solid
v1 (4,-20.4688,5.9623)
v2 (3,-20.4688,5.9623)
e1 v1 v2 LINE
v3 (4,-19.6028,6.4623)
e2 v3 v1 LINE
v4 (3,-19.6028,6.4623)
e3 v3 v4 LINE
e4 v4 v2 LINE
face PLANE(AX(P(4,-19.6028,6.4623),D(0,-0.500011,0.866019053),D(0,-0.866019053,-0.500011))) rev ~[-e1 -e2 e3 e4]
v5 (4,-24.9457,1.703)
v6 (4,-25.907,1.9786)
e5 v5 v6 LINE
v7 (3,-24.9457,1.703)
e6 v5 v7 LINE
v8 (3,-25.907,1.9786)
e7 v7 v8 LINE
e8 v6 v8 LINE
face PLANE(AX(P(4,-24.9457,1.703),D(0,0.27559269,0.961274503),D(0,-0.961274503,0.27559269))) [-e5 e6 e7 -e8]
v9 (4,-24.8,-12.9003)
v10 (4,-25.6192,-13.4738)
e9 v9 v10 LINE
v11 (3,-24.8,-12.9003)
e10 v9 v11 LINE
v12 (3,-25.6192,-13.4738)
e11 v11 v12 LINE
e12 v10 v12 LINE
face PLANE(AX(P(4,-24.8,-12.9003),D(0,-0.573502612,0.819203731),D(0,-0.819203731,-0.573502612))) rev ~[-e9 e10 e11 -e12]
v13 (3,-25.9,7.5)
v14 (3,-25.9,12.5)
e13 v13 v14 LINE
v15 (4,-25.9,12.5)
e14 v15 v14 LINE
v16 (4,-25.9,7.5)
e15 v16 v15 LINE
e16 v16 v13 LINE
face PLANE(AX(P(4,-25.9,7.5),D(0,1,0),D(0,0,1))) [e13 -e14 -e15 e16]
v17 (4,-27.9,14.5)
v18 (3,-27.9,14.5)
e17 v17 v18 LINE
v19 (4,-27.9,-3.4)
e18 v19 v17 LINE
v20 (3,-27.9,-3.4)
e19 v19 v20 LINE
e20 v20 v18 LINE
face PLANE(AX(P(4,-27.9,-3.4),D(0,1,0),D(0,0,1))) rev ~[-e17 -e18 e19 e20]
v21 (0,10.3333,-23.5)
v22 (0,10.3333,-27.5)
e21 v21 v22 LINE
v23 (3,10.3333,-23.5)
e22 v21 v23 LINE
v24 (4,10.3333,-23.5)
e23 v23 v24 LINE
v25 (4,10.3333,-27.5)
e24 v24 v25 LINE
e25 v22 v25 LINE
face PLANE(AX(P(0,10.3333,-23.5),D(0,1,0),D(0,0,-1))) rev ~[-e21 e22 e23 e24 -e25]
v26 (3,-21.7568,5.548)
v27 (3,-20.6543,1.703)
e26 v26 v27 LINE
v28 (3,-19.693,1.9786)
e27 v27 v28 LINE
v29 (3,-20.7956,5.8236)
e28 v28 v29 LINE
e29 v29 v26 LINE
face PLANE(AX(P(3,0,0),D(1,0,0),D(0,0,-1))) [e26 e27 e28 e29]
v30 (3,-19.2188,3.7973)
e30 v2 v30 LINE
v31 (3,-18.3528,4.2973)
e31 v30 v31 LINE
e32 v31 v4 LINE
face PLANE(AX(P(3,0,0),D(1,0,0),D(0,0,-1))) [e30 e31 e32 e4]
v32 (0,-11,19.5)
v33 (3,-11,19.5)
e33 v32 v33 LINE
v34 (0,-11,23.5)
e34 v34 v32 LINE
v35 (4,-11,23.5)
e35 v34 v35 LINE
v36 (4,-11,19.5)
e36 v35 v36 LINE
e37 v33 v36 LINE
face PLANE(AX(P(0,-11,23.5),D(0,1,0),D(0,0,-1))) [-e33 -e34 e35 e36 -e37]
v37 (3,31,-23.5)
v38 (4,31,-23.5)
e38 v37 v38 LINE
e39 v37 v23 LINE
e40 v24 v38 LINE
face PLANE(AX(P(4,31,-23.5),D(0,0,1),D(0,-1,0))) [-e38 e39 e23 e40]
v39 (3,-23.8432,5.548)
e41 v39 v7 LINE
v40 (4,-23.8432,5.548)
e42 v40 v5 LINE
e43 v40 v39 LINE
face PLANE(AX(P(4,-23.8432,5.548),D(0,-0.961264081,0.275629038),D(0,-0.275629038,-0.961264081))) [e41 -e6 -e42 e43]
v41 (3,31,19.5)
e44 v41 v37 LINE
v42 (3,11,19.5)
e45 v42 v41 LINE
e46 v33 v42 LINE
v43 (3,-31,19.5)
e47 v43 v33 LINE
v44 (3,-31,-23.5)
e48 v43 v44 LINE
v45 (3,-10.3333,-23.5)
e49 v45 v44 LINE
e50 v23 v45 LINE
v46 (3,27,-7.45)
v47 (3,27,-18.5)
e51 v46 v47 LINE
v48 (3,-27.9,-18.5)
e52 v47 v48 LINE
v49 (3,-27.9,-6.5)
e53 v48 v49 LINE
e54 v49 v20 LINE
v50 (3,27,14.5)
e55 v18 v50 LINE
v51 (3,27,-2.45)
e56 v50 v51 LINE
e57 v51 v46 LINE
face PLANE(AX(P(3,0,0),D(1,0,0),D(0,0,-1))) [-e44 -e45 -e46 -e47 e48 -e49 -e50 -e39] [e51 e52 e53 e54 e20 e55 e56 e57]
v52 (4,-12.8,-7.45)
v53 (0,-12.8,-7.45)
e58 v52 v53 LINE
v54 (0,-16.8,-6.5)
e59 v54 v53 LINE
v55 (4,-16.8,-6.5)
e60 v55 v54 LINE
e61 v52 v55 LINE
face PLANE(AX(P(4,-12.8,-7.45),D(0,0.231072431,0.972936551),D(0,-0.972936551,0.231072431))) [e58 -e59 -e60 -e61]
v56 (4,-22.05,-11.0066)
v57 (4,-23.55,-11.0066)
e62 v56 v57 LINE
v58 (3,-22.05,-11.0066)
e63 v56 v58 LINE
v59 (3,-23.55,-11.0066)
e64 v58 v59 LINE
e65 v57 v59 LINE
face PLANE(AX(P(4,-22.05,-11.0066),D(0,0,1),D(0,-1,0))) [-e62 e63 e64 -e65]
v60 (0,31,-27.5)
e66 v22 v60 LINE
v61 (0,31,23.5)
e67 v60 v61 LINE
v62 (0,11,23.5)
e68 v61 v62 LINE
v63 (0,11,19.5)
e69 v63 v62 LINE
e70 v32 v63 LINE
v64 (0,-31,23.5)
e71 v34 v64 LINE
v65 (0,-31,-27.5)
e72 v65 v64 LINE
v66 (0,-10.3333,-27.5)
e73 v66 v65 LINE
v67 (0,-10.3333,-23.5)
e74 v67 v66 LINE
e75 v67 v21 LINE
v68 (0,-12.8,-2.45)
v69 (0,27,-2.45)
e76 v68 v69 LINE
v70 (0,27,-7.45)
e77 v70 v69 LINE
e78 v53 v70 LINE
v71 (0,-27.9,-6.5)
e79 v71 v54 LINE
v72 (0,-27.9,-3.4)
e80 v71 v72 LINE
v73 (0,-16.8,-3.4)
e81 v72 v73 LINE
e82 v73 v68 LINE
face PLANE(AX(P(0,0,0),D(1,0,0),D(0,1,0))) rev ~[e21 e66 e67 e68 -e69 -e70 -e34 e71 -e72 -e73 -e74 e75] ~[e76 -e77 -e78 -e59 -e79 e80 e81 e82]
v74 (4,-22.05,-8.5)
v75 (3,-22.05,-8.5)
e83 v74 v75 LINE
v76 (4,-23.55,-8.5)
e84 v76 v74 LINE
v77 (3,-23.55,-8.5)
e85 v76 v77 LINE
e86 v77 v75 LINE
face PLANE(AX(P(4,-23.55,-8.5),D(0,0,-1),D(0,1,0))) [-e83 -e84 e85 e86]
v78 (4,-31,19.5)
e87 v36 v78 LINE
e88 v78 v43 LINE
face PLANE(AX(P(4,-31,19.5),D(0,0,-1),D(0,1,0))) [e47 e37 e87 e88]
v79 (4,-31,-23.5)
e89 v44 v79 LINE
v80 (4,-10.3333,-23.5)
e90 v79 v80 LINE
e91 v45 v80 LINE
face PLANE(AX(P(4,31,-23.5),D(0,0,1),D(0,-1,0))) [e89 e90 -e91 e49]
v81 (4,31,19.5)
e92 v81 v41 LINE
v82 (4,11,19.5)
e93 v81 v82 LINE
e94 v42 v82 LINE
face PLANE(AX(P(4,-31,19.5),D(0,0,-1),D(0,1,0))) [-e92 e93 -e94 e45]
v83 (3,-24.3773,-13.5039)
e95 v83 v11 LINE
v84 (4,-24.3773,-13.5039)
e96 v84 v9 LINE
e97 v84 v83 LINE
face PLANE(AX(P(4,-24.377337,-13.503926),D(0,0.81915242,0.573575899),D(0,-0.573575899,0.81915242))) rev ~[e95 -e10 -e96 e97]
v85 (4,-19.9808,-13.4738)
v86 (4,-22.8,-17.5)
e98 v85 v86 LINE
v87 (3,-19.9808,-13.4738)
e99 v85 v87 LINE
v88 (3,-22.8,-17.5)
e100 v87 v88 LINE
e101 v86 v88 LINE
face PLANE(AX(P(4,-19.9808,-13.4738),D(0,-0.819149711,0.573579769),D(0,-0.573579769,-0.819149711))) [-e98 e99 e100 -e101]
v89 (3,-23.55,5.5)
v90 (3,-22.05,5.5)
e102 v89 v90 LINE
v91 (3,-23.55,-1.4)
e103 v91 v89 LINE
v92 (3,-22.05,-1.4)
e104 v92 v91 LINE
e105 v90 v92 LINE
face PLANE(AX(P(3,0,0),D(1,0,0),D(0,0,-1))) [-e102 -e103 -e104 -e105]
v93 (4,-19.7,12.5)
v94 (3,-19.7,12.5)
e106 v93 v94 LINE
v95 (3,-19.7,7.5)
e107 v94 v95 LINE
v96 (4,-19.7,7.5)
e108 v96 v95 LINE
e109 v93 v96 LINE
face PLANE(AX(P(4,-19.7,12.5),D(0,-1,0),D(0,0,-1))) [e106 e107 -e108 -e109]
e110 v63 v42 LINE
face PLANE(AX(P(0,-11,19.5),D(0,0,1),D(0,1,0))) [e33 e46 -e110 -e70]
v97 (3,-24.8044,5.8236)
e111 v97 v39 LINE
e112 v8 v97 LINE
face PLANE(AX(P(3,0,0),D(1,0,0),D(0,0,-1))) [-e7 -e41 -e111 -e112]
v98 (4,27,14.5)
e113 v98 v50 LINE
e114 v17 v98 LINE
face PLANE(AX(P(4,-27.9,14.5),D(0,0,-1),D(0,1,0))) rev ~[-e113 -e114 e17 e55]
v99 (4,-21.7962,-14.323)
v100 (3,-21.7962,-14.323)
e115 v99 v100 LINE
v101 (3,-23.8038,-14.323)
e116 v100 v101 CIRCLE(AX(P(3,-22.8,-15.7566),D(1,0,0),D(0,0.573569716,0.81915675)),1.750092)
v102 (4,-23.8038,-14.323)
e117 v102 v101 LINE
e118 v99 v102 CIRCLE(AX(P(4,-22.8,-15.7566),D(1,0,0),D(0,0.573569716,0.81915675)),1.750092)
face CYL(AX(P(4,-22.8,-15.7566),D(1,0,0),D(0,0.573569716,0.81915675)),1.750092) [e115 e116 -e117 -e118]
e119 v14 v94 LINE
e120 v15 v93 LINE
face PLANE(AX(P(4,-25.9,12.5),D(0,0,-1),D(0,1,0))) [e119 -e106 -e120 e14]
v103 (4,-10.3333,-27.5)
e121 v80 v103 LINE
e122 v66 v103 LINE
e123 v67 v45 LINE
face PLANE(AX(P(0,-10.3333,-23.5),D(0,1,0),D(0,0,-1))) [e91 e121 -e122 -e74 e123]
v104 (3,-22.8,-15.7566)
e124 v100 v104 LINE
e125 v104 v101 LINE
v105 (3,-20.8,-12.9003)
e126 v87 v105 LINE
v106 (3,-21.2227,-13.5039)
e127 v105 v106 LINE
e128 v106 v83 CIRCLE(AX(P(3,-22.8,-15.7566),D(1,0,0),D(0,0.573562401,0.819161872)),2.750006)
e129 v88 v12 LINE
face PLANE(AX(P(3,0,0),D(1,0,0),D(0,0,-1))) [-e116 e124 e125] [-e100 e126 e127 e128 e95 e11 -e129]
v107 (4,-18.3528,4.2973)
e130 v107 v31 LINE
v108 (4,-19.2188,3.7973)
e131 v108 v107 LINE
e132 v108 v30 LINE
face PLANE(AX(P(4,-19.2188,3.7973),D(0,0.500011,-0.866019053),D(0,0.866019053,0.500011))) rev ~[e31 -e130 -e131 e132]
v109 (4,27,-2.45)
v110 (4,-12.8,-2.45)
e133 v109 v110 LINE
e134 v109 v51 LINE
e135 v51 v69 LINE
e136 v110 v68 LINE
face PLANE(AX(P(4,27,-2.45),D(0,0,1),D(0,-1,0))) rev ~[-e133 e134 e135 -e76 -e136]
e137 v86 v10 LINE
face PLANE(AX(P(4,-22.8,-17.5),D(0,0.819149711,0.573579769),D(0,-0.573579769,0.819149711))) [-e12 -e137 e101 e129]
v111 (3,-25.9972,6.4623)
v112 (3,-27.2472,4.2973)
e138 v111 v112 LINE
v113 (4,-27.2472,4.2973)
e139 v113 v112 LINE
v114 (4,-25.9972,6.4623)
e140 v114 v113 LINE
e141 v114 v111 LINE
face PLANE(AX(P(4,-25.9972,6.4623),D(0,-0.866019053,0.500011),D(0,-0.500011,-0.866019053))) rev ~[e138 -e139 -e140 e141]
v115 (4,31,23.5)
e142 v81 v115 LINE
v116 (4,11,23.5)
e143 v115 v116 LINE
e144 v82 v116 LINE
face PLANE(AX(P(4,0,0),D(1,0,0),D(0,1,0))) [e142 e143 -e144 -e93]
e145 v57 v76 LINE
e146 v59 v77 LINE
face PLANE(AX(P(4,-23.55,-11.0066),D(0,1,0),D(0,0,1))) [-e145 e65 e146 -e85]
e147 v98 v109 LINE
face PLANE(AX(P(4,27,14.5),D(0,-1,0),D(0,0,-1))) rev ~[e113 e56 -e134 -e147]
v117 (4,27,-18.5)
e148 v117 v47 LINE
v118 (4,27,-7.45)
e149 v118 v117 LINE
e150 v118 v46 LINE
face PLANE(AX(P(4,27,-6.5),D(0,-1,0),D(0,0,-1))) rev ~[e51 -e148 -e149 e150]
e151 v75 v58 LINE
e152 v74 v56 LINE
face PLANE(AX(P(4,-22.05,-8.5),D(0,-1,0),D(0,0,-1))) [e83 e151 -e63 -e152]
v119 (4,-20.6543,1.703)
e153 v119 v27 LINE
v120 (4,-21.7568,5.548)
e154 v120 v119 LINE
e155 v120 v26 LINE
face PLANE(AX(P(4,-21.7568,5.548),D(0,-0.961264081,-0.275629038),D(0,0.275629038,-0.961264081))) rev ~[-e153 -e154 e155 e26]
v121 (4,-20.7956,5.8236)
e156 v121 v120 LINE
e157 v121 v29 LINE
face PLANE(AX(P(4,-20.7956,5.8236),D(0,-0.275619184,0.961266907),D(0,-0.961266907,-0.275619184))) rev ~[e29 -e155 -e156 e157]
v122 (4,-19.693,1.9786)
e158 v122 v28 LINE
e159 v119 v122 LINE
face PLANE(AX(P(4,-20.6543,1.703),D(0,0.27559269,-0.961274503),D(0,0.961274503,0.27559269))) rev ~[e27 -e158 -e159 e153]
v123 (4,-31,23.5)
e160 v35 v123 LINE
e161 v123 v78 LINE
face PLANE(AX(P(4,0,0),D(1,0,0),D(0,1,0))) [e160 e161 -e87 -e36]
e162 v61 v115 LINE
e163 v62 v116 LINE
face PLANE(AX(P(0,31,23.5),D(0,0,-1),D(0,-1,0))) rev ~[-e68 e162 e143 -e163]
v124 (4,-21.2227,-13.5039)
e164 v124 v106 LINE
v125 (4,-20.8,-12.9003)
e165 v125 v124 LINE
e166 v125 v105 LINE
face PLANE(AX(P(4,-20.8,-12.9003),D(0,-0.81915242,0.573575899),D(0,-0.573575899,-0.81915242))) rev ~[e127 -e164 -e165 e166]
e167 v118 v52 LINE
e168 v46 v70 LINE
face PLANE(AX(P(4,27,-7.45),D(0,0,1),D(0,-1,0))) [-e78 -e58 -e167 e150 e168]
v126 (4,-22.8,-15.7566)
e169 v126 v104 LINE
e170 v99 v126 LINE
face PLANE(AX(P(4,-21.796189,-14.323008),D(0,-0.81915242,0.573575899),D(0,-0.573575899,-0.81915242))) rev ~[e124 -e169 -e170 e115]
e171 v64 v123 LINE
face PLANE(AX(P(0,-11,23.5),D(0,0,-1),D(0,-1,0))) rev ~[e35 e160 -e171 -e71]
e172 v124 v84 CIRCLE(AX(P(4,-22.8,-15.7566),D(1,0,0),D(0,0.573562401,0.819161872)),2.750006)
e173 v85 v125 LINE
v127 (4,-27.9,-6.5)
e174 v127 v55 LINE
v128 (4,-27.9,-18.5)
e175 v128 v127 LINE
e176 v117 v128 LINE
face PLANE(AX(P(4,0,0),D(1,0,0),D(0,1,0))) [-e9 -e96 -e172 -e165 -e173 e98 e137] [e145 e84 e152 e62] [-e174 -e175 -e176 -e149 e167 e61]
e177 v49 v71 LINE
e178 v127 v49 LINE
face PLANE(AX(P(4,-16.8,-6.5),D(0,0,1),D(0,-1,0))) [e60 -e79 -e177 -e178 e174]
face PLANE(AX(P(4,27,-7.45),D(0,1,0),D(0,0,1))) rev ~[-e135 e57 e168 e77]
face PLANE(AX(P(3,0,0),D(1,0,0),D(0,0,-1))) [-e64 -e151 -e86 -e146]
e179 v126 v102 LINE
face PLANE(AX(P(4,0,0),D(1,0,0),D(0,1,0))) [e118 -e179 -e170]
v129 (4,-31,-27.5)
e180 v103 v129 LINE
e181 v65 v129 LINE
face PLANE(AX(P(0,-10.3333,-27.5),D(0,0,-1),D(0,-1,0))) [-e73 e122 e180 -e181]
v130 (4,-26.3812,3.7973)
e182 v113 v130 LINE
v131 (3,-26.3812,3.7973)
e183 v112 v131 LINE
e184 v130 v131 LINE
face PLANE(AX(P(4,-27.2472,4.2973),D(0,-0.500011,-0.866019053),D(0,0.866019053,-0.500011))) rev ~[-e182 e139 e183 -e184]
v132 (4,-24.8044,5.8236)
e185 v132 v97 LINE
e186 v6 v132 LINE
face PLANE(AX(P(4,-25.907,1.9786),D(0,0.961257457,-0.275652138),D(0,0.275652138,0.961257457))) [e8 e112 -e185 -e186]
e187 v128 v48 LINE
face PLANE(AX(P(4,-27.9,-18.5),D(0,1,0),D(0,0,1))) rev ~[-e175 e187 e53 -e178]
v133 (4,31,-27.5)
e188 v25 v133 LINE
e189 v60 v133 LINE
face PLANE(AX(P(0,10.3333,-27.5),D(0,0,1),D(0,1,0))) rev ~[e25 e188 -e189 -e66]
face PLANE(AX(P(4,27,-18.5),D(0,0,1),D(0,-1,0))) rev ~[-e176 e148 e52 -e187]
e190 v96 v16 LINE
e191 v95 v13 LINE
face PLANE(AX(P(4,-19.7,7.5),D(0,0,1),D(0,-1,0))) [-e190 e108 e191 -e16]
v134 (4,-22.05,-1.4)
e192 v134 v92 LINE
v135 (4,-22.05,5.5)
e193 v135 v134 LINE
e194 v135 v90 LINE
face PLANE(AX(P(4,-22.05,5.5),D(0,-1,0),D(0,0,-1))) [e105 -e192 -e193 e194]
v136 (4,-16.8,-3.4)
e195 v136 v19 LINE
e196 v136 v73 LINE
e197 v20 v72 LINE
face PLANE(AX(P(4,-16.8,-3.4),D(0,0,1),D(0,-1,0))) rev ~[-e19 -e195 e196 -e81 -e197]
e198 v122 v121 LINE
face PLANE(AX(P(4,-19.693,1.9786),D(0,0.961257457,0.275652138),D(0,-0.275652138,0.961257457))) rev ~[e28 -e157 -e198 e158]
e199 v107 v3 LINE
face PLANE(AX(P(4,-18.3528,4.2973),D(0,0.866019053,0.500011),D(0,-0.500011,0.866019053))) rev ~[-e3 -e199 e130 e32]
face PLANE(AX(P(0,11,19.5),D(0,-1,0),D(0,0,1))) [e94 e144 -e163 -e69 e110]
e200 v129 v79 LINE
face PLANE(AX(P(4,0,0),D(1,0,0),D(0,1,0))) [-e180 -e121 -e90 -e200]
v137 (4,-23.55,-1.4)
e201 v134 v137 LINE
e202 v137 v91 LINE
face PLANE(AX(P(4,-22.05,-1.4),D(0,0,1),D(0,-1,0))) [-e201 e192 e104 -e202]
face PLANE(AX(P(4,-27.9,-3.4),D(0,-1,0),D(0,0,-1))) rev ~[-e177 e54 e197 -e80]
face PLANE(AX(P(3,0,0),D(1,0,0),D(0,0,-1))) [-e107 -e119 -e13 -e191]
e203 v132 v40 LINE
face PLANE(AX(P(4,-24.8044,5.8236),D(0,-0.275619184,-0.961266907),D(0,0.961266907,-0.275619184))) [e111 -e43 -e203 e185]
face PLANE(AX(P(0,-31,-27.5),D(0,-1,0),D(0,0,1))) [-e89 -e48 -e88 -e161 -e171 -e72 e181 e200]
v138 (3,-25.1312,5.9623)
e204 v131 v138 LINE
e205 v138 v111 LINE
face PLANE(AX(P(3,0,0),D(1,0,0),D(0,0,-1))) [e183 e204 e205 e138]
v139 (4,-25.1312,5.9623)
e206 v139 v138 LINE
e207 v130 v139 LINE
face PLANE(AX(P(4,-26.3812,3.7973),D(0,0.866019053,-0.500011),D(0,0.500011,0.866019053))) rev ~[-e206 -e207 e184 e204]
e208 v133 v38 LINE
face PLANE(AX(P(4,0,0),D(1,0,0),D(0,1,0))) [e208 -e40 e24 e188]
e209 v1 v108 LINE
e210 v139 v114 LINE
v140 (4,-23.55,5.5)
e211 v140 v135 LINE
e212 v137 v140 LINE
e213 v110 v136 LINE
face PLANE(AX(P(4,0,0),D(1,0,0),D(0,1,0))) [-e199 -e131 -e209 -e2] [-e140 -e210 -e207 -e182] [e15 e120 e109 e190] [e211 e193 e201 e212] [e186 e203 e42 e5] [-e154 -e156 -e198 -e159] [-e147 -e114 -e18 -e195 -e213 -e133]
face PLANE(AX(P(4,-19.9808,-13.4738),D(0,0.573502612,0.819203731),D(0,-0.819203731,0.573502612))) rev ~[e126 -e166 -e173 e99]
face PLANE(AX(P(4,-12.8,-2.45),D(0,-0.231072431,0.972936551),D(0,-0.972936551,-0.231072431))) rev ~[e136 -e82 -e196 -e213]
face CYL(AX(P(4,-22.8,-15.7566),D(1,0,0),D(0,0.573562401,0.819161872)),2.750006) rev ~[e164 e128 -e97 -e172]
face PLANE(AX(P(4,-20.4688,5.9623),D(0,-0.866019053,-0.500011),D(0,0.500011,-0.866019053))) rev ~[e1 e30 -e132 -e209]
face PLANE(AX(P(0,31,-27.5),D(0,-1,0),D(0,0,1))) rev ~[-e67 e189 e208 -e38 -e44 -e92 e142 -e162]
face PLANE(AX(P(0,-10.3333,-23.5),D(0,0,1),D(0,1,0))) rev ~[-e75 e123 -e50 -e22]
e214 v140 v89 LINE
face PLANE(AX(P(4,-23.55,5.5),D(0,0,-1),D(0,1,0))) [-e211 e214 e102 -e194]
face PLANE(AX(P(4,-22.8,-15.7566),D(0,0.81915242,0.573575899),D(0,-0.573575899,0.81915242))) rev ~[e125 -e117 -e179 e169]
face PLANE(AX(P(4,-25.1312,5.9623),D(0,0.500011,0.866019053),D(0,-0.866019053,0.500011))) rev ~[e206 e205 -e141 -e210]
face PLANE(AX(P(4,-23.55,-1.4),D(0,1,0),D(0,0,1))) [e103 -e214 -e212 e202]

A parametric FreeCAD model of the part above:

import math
import FreeCAD as App
import Part
import Sketcher

V = App.Vector
Q = App.Units.Quantity


def add_polygon(sketch, points):
    """Adds a closed chain of lines whose ends are joined by coincident constraints."""
    first, n = sketch.GeometryCount, len(points)
    for a, b in zip(points, points[1:] + points[:1]):
        sketch.addGeometry(Part.LineSegment(App.Vector(*a, 0), App.Vector(*b, 0)), False)
    for i in range(n):
        sketch.addConstraint(Sketcher.Constraint("Coincident", first + i, 2, first + (i + 1) % n, 1))

doc = App.newDocument("Part")
body = doc.addObject("PartDesign::Body", "Body")

# Sketch on YZ plane
sketch1 = body.newObject("Sketcher::SketchObject", "Sketch")
sketch1.AttachmentSupport = (doc.getObject("YZ_Plane"), [""])
sketch1.MapMode = "FlatFace"
add_polygon(sketch1, [(31, -27.5), (31, 23.5), (11, 23.5), (11, 19.5), (-11, 19.5), (-11, 23.5), (-31, 23.5), (-31, -27.5), (-10.3, -27.5), (-10.3, -23.5), (10.3, -23.5), (10.3, -27.5)])  # lines 0-11
sketch1.addConstraint(Sketcher.Constraint("Vertical", 0))
sketch1.addConstraint(Sketcher.Constraint("Horizontal", 1))
sketch1.addConstraint(Sketcher.Constraint("Vertical", 2))
sketch1.addConstraint(Sketcher.Constraint("Horizontal", 3))
sketch1.addConstraint(Sketcher.Constraint("Vertical", 4))
sketch1.addConstraint(Sketcher.Constraint("Horizontal", 5))
sketch1.addConstraint(Sketcher.Constraint("Vertical", 6))
sketch1.addConstraint(Sketcher.Constraint("Horizontal", 7))
sketch1.addConstraint(Sketcher.Constraint("Vertical", 8))
sketch1.addConstraint(Sketcher.Constraint("Horizontal", 9))
sketch1.addConstraint(Sketcher.Constraint("Vertical", 10))
sketch1.addConstraint(Sketcher.Constraint("Horizontal", 11))
sketch1.addConstraint(Sketcher.Constraint("Symmetric", 1, 2, 4, 2, -2))
sketch1.addConstraint(Sketcher.Constraint("Symmetric", 7, 2, 10, 2, -2))
sketch1.addConstraint(Sketcher.Constraint("Equal", 1, 5))
sketch1.addConstraint(Sketcher.Constraint("Equal", 7, 9))
sketch1.addConstraint(Sketcher.Constraint("Equal", 4, 8))
sketch1.addConstraint(Sketcher.Constraint("DistanceX", 1, 2, 1, 1, Q("20 mm")))
sketch1.addConstraint(Sketcher.Constraint("DistanceY", 2, 2, 2, 1, Q("4 mm")))
sketch1.addConstraint(Sketcher.Constraint("DistanceX", 5, 2, 0, 2, Q("62 mm")))
sketch1.addConstraint(Sketcher.Constraint("DistanceY", 6, 2, 3, 2, Q("47 mm")))
sketch1.addConstraint(Sketcher.Constraint("DistanceY", -1, 1, 0, 2, Q("23.5 mm")))
pad1 = body.newObject("PartDesign::Pad", "Pad")
pad1.Profile = sketch1
pad1.Length = 4

# Sketch on YZ plane
sketch2 = body.newObject("Sketcher::SketchObject", "Sketch001")
sketch2.AttachmentSupport = (doc.getObject("YZ_Plane"), [""])
sketch2.MapMode = "FlatFace"
sketch2.AttachmentOffset = App.Placement(V(0, 0, 4), App.Rotation())
add_polygon(sketch2, [(31, -23.5), (31, 19.5), (-31, 19.5), (-31, -23.5)])  # lines 0-3
add_polygon(sketch2, [(-27.9, -6.5), (27, -6.5), (27, -18.5), (-27.9, -18.5)])  # lines 4-7
add_polygon(sketch2, [(27, -3.4), (-27.9, -3.4), (-27.9, 14.5), (27, 14.5)])  # lines 8-11
add_polygon(sketch2, [(-19.7, 7.5), (-19.7, 12.5), (-25.9, 12.5), (-25.9, 7.5)])  # lines 12-15
add_polygon(sketch2, [(-22.1, -1.4), (-22.1, 5.5), (-23.6, 5.5), (-23.6, -1.4)])  # lines 16-19
sketch2.addGeometry(Part.LineSegment(V(-22.8, -17.5, 0), V(-20, -13.5, 0)), False)  # 20
sketch2.addGeometry(Part.LineSegment(V(-20, -13.5, 0), V(-20.8, -12.9, 0)), False)  # 21
sketch2.addGeometry(Part.LineSegment(V(-20.8, -12.9, 0), V(-21.2, -13.5, 0)), False)  # 22
sketch2.addGeometry(Part.ArcOfCircle(Part.Circle(V(-22.8, -15.8, 0), V(0, 0, 1), 2.8), math.radians(55), math.radians(125)), False)  # 23
sketch2.addGeometry(Part.LineSegment(V(-24.4, -13.5, 0), V(-24.8, -12.9, 0)), False)  # 24
sketch2.addGeometry(Part.LineSegment(V(-24.8, -12.9, 0), V(-25.6, -13.5, 0)), False)  # 25
sketch2.addGeometry(Part.LineSegment(V(-25.6, -13.5, 0), V(-22.8, -17.5, 0)), False)  # 26
sketch2.addGeometry(Part.LineSegment(V(-22.8, -15.8, 0), V(-23.8, -14.3, 0)), False)  # 27
sketch2.addGeometry(Part.ArcOfCircle(Part.Circle(V(-22.8, -15.8, 0), V(0, 0, 1), 1.8), math.radians(55), math.radians(125)), False)  # 28
sketch2.addGeometry(Part.LineSegment(V(-21.8, -14.3, 0), V(-22.8, -15.8, 0)), False)  # 29
add_polygon(sketch2, [(-22.1, -11), (-22.1, -8.5), (-23.6, -8.5), (-23.6, -11)])  # lines 30-33
add_polygon(sketch2, [(-19.7, 2), (-20.8, 5.8), (-21.8, 5.5), (-20.7, 1.7)])  # lines 34-37
add_polygon(sketch2, [(-24.9, 1.7), (-23.8, 5.5), (-24.8, 5.8), (-25.9, 2)])  # lines 38-41
add_polygon(sketch2, [(-18.4, 4.3), (-19.6, 6.5), (-20.5, 6), (-19.2, 3.8)])  # lines 42-45
add_polygon(sketch2, [(-26.4, 3.8), (-25.1, 6), (-26, 6.5), (-27.2, 4.3)])  # lines 46-49
sketch2.addConstraint(Sketcher.Constraint("Coincident", 20, 2, 21, 1))
sketch2.addConstraint(Sketcher.Constraint("Coincident", 21, 2, 22, 1))
sketch2.addConstraint(Sketcher.Constraint("Coincident", 22, 2, 23, 1))
sketch2.addConstraint(Sketcher.Constraint("Coincident", 23, 2, 24, 1))
sketch2.addConstraint(Sketcher.Constraint("Coincident", 24, 2, 25, 1))
sketch2.addConstraint(Sketcher.Constraint("Coincident", 25, 2, 26, 1))
sketch2.addConstraint(Sketcher.Constraint("Coincident", 26, 2, 20, 1))
sketch2.addConstraint(Sketcher.Constraint("Coincident", 27, 2, 28, 2))
sketch2.addConstraint(Sketcher.Constraint("Coincident", 28, 1, 29, 1))
sketch2.addConstraint(Sketcher.Constraint("Coincident", 29, 2, 27, 1))
sketch2.addConstraint(Sketcher.Constraint("Vertical", 0))
sketch2.addConstraint(Sketcher.Constraint("Horizontal", 1))
sketch2.addConstraint(Sketcher.Constraint("Vertical", 2))
sketch2.addConstraint(Sketcher.Constraint("Horizontal", 3))
sketch2.addConstraint(Sketcher.Constraint("Horizontal", 4))
sketch2.addConstraint(Sketcher.Constraint("Vertical", 5))
sketch2.addConstraint(Sketcher.Constraint("Horizontal", 6))
sketch2.addConstraint(Sketcher.Constraint("Vertical", 7))
sketch2.addConstraint(Sketcher.Constraint("Horizontal", 8))
sketch2.addConstraint(Sketcher.Constraint("Vertical", 9))
sketch2.addConstraint(Sketcher.Constraint("Horizontal", 10))
sketch2.addConstraint(Sketcher.Constraint("Vertical", 11))
sketch2.addConstraint(Sketcher.Constraint("Vertical", 12))
sketch2.addConstraint(Sketcher.Constraint("Horizontal", 13))
sketch2.addConstraint(Sketcher.Constraint("Vertical", 14))
sketch2.addConstraint(Sketcher.Constraint("Horizontal", 15))
sketch2.addConstraint(Sketcher.Constraint("Vertical", 16))
sketch2.addConstraint(Sketcher.Constraint("Horizontal", 17))
sketch2.addConstraint(Sketcher.Constraint("Vertical", 18))
sketch2.addConstraint(Sketcher.Constraint("Horizontal", 19))
sketch2.addConstraint(Sketcher.Constraint("Vertical", 30))
sketch2.addConstraint(Sketcher.Constraint("Horizontal", 31))
sketch2.addConstraint(Sketcher.Constraint("Vertical", 32))
sketch2.addConstraint(Sketcher.Constraint("Horizontal", 33))
sketch2.addConstraint(Sketcher.Constraint("Coincident", 28, 3, 23, 3))
sketch2.addConstraint(Sketcher.Constraint("Coincident", 29, 2, 23, 3))
sketch2.addConstraint(Sketcher.Constraint("Perpendicular", 20, 21))
sketch2.addConstraint(Sketcher.Constraint("Perpendicular", 21, 22))
sketch2.addConstraint(Sketcher.Constraint("Perpendicular", 24, 25))
sketch2.addConstraint(Sketcher.Constraint("Perpendicular", 25, 26))
sketch2.addConstraint(Sketcher.Constraint("Parallel", 26, 27))
sketch2.addConstraint(Sketcher.Constraint("Parallel", 22, 29))
sketch2.addConstraint(Sketcher.Constraint("Perpendicular", 34, 35))
sketch2.addConstraint(Sketcher.Constraint("Perpendicular", 35, 36))
sketch2.addConstraint(Sketcher.Constraint("Perpendicular", 36, 37))
sketch2.addConstraint(Sketcher.Constraint("Perpendicular", 38, 39))
sketch2.addConstraint(Sketcher.Constraint("Perpendicular", 39, 40))
sketch2.addConstraint(Sketcher.Constraint("Perpendicular", 40, 41))
sketch2.addConstraint(Sketcher.Constraint("Perpendicular", 42, 43))
sketch2.addConstraint(Sketcher.Constraint("Perpendicular", 43, 44))
sketch2.addConstraint(Sketcher.Constraint("Perpendicular", 44, 45))
sketch2.addConstraint(Sketcher.Constraint("Perpendicular", 46, 47))
sketch2.addConstraint(Sketcher.Constraint("Perpendicular", 47, 48))
sketch2.addConstraint(Sketcher.Constraint("Perpendicular", 48, 49))
sketch2.addConstraint(Sketcher.Constraint("Horizontal", 22, 2, 23, 2))
sketch2.addConstraint(Sketcher.Constraint("Horizontal", 21, 2, 24, 2))
sketch2.addConstraint(Sketcher.Constraint("Horizontal", 20, 2, 25, 2))
sketch2.addConstraint(Sketcher.Constraint("Horizontal", 27, 2, 28, 1))
sketch2.addConstraint(Sketcher.Constraint("Horizontal", 35, 2, 38, 2))
sketch2.addConstraint(Sketcher.Constraint("Horizontal", 34, 2, 39, 2))
sketch2.addConstraint(Sketcher.Constraint("Horizontal", 37, 2, 40, 2))
sketch2.addConstraint(Sketcher.Constraint("Horizontal", 43, 2, 46, 2))
sketch2.addConstraint(Sketcher.Constraint("Horizontal", 42, 2, 47, 2))
sketch2.addConstraint(Sketcher.Constraint("Horizontal", 45, 2, 48, 2))
sketch2.addConstraint(Sketcher.Constraint("Vertical", 7, 2, 8, 2))
sketch2.addConstraint(Sketcher.Constraint("Vertical", 5, 2, 10, 2))
sketch2.addConstraint(Sketcher.Constraint("Vertical", 19, 2, 30, 2))
sketch2.addConstraint(Sketcher.Constraint("Vertical", 18, 2, 31, 2))
sketch2.addConstraint(Sketcher.Constraint("Equal", 25, 35))
sketch2.addConstraint(Sketcher.Constraint("Equal", 36, 38))
sketch2.addConstraint(Sketcher.Constraint("Equal", 41, 43))
sketch2.addConstraint(Sketcher.Constraint("Equal", 44, 46))
sketch2.addConstraint(Sketcher.Constraint("DistanceY", 5, 2, 5, 1, Q("12 mm")))
sketch2.addConstraint(Sketcher.Constraint("DistanceY", 12, 1, 12, 2, Q("5 mm")))
sketch2.addConstraint(Sketcher.Constraint("Radius", 23, Q("2.75 mm")))
sketch2.addConstraint(Sketcher.Constraint("Radius", 28, Q("1.75 mm")))
sketch2.addConstraint(Sketcher.Constraint("Distance", 21, Q("1 mm")))
sketch2.addConstraint(Sketcher.Constraint("Distance", 34, Q("4 mm")))
sketch2.addConstraint(Sketcher.Constraint("DistanceX", 13, 2, 13, 1, Q("6.2 mm")))
sketch2.addConstraint(Sketcher.Constraint("DistanceX", 17, 2, 17, 1, Q("1.5 mm")))
sketch2.addConstraint(Sketcher.Constraint("DistanceX", 4, 2, 3, 2, Q("4 mm")))
sketch2.addConstraint(Sketcher.Constraint("DistanceY", 3, 2, 5, 2, Q("5 mm")))
sketch2.addConstraint(Sketcher.Constraint("DistanceY", 9, 2, 1, 2, Q("5 mm")))
sketch2.addConstraint(Sketcher.Constraint("DistanceY", 12, 2, 9, 2, Q("2 mm")))
sketch2.addConstraint(Sketcher.Constraint("DistanceX", 9, 2, 13, 2, Q("2 mm")))
sketch2.addConstraint(Sketcher.Constraint("DistanceY", 16, 2, 15, 2, Q("2 mm")))
sketch2.addConstraint(Sketcher.Constraint("DistanceY", 8, 2, 18, 2, Q("2 mm")))
sketch2.addConstraint(Sketcher.Constraint("DistanceX", 23, 3, 21, 2, Q("2 mm")))
sketch2.addConstraint(Sketcher.Constraint("DistanceY", 31, 2, 7, 2, Q("2 mm")))
sketch2.addConstraint(Sketcher.Constraint("Distance", 42, Q("2.5 mm")))
sketch2.addConstraint(Sketcher.Constraint("DistanceX", 2, 2, 6, 2, Q("3.1 mm")))
sketch2.addConstraint(Sketcher.Constraint("DistanceY", 7, 2, 8, 2, Q("3.1 mm")))
sketch2.addConstraint(Sketcher.Constraint("DistanceX", 23, 3, 12, 2, Q("3.1 mm")))
sketch2.addConstraint(Sketcher.Constraint("DistanceX", 1, 2, 1, 1, Q("62 mm")))
sketch2.addConstraint(Sketcher.Constraint("DistanceY", 0, 1, 0, 2, Q("43 mm")))
sketch2.addConstraint(Sketcher.Constraint("Angle", 20, Q("54.9998 deg")))
sketch2.addConstraint(Sketcher.Constraint("Angle", 34, Q("106.001 deg")))
sketch2.addConstraint(Sketcher.Constraint("Angle", 42, Q("120.0007 deg")))
sketch2.addConstraint(Sketcher.Constraint("DistanceX", 24, 2, 30, 2, Q("2.75 mm")))
sketch2.addConstraint(Sketcher.Constraint("DistanceX", -1, 1, 0, 2, Q("31 mm")))
sketch2.addConstraint(Sketcher.Constraint("DistanceY", -1, 1, 0, 2, Q("19.5 mm")))
sketch2.addConstraint(Sketcher.Constraint("DistanceY", 26, 2, -1, 1, Q("17.5 mm")))
sketch2.addConstraint(Sketcher.Constraint("DistanceY", 23, 2, 20, 2, Q("0.03 mm")))
sketch2.addConstraint(Sketcher.Constraint("DistanceY", 30, 1, 30, 2, Q("2.5066 mm")))
sketch2.addConstraint(Sketcher.Constraint("DistanceY", -1, 1, 35, 2, Q("5.548 mm")))
sketch2.addConstraint(Sketcher.Constraint("DistanceX", 37, 2, -1, 1, Q("19.693 mm")))
sketch2.addConstraint(Sketcher.Constraint("DistanceX", 40, 2, -1, 1, Q("25.907 mm")))
sketch2.addConstraint(Sketcher.Constraint("DistanceX", 35, 2, 42, 2, Q("2.154 mm")))
sketch2.addConstraint(Sketcher.Constraint("DistanceX", 46, 2, 38, 2, Q("1.288 mm")))
sketch2.addConstraint(Sketcher.Constraint("DistanceY", -1, 1, 42, 2, Q("6.4623 mm")))
pocket1 = body.newObject("PartDesign::Pocket", "Pocket")
pocket1.Profile = sketch2
pocket1.Length = 1

# Sketch on YZ plane
sketch3 = body.newObject("Sketcher::SketchObject", "Sketch002")
sketch3.AttachmentSupport = (doc.getObject("YZ_Plane"), [""])
sketch3.MapMode = "FlatFace"
sketch3.AttachmentOffset = App.Placement(V(0, 0, 4), App.Rotation())
add_polygon(sketch3, [(-27.9, -3.4), (-27.9, -6.5), (-16.8, -6.5), (-12.8, -7.5), (27, -7.5), (27, -2.5), (-12.8, -2.5), (-16.8, -3.4)])  # lines 0-7
sketch3.addConstraint(Sketcher.Constraint("Vertical", 0))
sketch3.addConstraint(Sketcher.Constraint("Horizontal", 1))
sketch3.addConstraint(Sketcher.Constraint("Horizontal", 3))
sketch3.addConstraint(Sketcher.Constraint("Vertical", 4))
sketch3.addConstraint(Sketcher.Constraint("Horizontal", 5))
sketch3.addConstraint(Sketcher.Constraint("Horizontal", 7))
sketch3.addConstraint(Sketcher.Constraint("Vertical", 2, 2, 5, 2))
sketch3.addConstraint(Sketcher.Constraint("Vertical", 1, 2, 6, 2))
sketch3.addConstraint(Sketcher.Constraint("Equal", 2, 6))
sketch3.addConstraint(Sketcher.Constraint("DistanceY", 4, 1, 4, 2, Q("5 mm")))
sketch3.addConstraint(Sketcher.Constraint("DistanceX", 1, 1, 1, 2, Q("11.1 mm")))
sketch3.addConstraint(Sketcher.Constraint("DistanceX", 1, 2, 2, 2, Q("4 mm")))
sketch3.addConstraint(Sketcher.Constraint("DistanceX", 3, 1, 3, 2, Q("39.8 mm")))
sketch3.addConstraint(Sketcher.Constraint("DistanceY", 0, 2, 0, 1, Q("3.1 mm")))
sketch3.addConstraint(Sketcher.Constraint("DistanceX", -1, 1, 3, 2, Q("27 mm")))
sketch3.addConstraint(Sketcher.Constraint("DistanceY", 0, 2, -1, 1, Q("6.5 mm")))
pocket2 = body.newObject("PartDesign::Pocket", "Pocket001")
pocket2.Profile = sketch3
pocket2.Length = 4

doc.recompute()
